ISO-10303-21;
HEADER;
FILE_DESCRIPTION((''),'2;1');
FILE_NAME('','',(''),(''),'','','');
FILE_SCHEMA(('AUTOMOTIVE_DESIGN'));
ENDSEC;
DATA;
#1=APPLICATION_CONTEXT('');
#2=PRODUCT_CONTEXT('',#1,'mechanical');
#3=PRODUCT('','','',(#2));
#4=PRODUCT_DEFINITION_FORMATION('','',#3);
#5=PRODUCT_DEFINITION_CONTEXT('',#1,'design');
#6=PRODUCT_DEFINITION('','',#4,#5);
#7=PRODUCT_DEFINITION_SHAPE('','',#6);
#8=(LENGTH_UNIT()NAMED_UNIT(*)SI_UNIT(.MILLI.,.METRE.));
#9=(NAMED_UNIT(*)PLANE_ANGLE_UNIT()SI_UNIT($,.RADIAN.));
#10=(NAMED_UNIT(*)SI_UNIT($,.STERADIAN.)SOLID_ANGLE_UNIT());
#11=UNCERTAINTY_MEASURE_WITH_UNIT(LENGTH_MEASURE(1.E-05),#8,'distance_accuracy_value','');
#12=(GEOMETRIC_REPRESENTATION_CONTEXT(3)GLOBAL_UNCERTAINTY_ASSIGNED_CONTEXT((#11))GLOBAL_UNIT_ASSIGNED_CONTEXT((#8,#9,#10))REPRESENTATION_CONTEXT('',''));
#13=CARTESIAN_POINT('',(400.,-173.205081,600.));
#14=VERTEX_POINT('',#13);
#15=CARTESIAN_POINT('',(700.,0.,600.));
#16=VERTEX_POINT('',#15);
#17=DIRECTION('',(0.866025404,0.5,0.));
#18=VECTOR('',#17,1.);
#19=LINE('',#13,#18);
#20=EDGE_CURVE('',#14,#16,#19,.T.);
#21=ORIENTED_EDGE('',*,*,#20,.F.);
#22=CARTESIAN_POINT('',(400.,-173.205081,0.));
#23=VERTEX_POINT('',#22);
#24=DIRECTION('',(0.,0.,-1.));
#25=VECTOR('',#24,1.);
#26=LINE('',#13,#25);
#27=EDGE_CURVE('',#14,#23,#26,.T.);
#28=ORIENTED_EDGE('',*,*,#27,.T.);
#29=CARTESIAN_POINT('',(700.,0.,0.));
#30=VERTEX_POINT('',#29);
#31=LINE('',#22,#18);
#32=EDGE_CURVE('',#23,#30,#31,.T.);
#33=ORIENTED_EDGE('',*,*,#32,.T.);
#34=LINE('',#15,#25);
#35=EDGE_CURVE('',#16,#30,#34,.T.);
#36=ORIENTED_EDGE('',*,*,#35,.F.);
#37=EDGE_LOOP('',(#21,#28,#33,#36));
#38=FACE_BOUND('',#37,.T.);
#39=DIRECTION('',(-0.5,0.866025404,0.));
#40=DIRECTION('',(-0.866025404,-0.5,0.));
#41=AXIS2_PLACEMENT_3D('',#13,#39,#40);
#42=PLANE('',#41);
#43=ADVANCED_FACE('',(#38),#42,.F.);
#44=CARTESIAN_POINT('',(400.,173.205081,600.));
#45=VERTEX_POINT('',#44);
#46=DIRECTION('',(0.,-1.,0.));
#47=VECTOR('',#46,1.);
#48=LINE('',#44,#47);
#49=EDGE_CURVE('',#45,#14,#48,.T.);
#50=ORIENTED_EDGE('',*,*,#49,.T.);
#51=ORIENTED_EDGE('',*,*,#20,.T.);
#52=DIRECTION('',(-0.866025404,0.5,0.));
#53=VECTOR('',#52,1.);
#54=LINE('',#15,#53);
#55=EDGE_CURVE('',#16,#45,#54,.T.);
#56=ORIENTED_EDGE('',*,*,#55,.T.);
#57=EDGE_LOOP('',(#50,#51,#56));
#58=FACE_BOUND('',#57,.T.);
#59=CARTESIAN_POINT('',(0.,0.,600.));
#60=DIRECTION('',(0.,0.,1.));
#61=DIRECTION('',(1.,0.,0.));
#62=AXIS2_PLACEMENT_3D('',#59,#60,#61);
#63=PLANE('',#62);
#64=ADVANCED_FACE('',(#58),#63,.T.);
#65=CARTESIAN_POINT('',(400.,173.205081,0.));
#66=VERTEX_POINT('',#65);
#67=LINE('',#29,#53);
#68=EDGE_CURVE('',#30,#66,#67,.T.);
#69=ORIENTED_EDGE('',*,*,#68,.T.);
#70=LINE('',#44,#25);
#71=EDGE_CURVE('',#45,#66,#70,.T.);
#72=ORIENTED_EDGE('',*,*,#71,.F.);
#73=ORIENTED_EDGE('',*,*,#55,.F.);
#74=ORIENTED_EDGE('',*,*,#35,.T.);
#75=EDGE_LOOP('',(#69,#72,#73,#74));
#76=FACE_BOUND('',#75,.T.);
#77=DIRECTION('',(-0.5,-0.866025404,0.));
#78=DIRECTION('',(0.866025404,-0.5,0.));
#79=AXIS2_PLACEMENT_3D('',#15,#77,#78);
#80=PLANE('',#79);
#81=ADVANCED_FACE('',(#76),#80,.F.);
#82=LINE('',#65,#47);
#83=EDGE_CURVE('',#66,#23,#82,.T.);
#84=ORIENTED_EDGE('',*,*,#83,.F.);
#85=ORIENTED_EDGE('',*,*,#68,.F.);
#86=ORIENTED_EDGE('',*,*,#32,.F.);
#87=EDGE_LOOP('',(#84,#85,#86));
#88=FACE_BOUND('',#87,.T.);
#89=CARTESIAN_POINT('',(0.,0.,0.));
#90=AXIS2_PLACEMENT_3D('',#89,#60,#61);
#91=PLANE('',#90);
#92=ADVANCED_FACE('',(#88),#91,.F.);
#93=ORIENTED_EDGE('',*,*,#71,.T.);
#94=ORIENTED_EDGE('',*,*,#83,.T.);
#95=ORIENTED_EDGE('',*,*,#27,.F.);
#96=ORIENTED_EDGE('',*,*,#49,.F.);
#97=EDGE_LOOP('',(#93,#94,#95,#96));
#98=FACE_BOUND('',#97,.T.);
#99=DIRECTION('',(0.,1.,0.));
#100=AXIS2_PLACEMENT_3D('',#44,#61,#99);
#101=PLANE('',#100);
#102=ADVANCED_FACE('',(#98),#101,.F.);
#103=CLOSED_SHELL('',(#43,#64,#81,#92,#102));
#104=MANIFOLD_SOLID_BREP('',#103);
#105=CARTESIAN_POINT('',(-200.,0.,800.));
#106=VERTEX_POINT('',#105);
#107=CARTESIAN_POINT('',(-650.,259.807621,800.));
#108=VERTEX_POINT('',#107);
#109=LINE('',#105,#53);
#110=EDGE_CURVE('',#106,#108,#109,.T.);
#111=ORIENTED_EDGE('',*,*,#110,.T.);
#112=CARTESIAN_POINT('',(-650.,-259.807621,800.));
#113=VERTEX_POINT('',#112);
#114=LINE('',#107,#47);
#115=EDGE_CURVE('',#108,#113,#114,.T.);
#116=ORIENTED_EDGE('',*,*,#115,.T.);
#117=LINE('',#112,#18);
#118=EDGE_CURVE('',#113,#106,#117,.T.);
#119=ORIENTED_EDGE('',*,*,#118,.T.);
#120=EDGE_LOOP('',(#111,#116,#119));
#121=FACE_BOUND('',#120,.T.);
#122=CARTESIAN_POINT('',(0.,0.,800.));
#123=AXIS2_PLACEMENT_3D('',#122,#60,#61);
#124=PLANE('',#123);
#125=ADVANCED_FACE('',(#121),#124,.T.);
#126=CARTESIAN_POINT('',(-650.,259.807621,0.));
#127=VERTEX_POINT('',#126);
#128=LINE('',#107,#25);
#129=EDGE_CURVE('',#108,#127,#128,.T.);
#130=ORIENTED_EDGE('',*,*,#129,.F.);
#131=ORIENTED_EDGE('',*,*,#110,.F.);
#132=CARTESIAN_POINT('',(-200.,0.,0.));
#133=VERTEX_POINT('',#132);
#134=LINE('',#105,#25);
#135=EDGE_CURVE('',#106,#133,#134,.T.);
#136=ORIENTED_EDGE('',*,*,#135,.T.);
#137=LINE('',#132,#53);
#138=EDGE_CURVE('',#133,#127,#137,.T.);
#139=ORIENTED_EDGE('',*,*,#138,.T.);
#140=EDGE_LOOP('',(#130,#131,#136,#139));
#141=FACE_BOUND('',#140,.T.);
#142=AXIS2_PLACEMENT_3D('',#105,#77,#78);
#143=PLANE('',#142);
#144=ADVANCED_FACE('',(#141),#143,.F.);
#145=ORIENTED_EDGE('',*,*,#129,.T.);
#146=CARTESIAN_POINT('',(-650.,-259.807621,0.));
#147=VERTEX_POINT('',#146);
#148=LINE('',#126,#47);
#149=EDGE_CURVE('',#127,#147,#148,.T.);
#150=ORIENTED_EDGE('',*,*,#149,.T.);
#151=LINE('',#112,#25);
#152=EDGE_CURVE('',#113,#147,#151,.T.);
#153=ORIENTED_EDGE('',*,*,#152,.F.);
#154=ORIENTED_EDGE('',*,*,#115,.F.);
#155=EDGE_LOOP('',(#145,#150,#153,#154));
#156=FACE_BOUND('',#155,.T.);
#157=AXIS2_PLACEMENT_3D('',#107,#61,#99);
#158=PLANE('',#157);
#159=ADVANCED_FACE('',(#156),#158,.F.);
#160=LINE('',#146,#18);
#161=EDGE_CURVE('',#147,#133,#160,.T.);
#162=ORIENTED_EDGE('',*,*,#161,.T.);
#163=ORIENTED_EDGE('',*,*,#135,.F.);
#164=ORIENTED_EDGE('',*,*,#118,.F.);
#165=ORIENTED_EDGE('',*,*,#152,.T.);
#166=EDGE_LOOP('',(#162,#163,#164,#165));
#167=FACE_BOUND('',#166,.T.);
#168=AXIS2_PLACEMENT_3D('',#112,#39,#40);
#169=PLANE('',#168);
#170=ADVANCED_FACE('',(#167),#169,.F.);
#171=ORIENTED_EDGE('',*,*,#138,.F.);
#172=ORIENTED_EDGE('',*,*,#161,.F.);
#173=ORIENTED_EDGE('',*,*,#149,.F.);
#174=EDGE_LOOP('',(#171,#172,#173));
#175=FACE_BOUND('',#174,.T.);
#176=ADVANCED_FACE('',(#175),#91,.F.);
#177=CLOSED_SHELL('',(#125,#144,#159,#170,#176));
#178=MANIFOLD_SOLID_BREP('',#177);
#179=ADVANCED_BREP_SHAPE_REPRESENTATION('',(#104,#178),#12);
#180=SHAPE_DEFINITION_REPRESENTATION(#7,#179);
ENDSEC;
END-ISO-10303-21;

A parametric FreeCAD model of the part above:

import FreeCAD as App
import Part
import Sketcher
from FreeCAD import Vector
Q = App.Units.Quantity


def add_polygon(sketch, points):
    """Adds a closed chain of lines whose ends are joined by coincident constraints."""
    first, n = sketch.GeometryCount, len(points)
    for a, b in zip(points, points[1:] + points[:1]):
        sketch.addGeometry(Part.LineSegment(App.Vector(*a, 0), App.Vector(*b, 0)), False)
    for i in range(n):
        sketch.addConstraint(Sketcher.Constraint("Coincident", first + i, 2, first + (i + 1) % n, 1))

doc = App.newDocument("Part")
body = doc.addObject("PartDesign::Body", "Body")

sketch1 = body.newObject("Sketcher::SketchObject", "Sketch")
sketch1.AttachmentSupport = (doc.getObject("XY_Plane"), [""])
sketch1.MapMode = "FlatFace"
add_polygon(sketch1, [(-200, 0), (-650, 259.807621), (-650, -259.807621)])
sketch1.addConstraint([
    Sketcher.Constraint("Vertical", 1),
    Sketcher.Constraint("PointOnObject", 2, 2, -1),
    Sketcher.Constraint("Equal", 0, 2),
    Sketcher.Constraint("Angle", 0, Q("150 deg")),
    Sketcher.Constraint("DistanceX", 0, 2, -1, 1, 650.0),
    Sketcher.Constraint("DistanceX", 2, 2, -1, 1, 200.0),
])
pad1 = body.newObject("PartDesign::Pad", "Pad")
pad1.Profile = sketch1
pad1.Length = 800
body2 = doc.addObject("PartDesign::Body", "Body001")

sketch2 = body2.newObject("Sketcher::SketchObject", "Sketch001")
sketch2.AttachmentSupport = (doc.getObject("XY_Plane001"), [""])
sketch2.MapMode = "FlatFace"
add_polygon(sketch2, [(700, 0), (400, 173.205081), (400, -173.205081)])
sketch2.addConstraint([
    Sketcher.Constraint("Vertical", 1),
    Sketcher.Constraint("PointOnObject", 2, 2, -1),
    Sketcher.Constraint("Equal", 0, 2),
    Sketcher.Constraint("Angle", 0, Q("150 deg")),
    Sketcher.Constraint("DistanceX", -1, 1, 0, 2, 400.0),
    Sketcher.Constraint("DistanceX", -1, 1, 2, 2, 700.0),
])
pad2 = body2.newObject("PartDesign::Pad", "Pad001")
pad2.Profile = sketch2
pad2.Length = 600

doc.recompute()
